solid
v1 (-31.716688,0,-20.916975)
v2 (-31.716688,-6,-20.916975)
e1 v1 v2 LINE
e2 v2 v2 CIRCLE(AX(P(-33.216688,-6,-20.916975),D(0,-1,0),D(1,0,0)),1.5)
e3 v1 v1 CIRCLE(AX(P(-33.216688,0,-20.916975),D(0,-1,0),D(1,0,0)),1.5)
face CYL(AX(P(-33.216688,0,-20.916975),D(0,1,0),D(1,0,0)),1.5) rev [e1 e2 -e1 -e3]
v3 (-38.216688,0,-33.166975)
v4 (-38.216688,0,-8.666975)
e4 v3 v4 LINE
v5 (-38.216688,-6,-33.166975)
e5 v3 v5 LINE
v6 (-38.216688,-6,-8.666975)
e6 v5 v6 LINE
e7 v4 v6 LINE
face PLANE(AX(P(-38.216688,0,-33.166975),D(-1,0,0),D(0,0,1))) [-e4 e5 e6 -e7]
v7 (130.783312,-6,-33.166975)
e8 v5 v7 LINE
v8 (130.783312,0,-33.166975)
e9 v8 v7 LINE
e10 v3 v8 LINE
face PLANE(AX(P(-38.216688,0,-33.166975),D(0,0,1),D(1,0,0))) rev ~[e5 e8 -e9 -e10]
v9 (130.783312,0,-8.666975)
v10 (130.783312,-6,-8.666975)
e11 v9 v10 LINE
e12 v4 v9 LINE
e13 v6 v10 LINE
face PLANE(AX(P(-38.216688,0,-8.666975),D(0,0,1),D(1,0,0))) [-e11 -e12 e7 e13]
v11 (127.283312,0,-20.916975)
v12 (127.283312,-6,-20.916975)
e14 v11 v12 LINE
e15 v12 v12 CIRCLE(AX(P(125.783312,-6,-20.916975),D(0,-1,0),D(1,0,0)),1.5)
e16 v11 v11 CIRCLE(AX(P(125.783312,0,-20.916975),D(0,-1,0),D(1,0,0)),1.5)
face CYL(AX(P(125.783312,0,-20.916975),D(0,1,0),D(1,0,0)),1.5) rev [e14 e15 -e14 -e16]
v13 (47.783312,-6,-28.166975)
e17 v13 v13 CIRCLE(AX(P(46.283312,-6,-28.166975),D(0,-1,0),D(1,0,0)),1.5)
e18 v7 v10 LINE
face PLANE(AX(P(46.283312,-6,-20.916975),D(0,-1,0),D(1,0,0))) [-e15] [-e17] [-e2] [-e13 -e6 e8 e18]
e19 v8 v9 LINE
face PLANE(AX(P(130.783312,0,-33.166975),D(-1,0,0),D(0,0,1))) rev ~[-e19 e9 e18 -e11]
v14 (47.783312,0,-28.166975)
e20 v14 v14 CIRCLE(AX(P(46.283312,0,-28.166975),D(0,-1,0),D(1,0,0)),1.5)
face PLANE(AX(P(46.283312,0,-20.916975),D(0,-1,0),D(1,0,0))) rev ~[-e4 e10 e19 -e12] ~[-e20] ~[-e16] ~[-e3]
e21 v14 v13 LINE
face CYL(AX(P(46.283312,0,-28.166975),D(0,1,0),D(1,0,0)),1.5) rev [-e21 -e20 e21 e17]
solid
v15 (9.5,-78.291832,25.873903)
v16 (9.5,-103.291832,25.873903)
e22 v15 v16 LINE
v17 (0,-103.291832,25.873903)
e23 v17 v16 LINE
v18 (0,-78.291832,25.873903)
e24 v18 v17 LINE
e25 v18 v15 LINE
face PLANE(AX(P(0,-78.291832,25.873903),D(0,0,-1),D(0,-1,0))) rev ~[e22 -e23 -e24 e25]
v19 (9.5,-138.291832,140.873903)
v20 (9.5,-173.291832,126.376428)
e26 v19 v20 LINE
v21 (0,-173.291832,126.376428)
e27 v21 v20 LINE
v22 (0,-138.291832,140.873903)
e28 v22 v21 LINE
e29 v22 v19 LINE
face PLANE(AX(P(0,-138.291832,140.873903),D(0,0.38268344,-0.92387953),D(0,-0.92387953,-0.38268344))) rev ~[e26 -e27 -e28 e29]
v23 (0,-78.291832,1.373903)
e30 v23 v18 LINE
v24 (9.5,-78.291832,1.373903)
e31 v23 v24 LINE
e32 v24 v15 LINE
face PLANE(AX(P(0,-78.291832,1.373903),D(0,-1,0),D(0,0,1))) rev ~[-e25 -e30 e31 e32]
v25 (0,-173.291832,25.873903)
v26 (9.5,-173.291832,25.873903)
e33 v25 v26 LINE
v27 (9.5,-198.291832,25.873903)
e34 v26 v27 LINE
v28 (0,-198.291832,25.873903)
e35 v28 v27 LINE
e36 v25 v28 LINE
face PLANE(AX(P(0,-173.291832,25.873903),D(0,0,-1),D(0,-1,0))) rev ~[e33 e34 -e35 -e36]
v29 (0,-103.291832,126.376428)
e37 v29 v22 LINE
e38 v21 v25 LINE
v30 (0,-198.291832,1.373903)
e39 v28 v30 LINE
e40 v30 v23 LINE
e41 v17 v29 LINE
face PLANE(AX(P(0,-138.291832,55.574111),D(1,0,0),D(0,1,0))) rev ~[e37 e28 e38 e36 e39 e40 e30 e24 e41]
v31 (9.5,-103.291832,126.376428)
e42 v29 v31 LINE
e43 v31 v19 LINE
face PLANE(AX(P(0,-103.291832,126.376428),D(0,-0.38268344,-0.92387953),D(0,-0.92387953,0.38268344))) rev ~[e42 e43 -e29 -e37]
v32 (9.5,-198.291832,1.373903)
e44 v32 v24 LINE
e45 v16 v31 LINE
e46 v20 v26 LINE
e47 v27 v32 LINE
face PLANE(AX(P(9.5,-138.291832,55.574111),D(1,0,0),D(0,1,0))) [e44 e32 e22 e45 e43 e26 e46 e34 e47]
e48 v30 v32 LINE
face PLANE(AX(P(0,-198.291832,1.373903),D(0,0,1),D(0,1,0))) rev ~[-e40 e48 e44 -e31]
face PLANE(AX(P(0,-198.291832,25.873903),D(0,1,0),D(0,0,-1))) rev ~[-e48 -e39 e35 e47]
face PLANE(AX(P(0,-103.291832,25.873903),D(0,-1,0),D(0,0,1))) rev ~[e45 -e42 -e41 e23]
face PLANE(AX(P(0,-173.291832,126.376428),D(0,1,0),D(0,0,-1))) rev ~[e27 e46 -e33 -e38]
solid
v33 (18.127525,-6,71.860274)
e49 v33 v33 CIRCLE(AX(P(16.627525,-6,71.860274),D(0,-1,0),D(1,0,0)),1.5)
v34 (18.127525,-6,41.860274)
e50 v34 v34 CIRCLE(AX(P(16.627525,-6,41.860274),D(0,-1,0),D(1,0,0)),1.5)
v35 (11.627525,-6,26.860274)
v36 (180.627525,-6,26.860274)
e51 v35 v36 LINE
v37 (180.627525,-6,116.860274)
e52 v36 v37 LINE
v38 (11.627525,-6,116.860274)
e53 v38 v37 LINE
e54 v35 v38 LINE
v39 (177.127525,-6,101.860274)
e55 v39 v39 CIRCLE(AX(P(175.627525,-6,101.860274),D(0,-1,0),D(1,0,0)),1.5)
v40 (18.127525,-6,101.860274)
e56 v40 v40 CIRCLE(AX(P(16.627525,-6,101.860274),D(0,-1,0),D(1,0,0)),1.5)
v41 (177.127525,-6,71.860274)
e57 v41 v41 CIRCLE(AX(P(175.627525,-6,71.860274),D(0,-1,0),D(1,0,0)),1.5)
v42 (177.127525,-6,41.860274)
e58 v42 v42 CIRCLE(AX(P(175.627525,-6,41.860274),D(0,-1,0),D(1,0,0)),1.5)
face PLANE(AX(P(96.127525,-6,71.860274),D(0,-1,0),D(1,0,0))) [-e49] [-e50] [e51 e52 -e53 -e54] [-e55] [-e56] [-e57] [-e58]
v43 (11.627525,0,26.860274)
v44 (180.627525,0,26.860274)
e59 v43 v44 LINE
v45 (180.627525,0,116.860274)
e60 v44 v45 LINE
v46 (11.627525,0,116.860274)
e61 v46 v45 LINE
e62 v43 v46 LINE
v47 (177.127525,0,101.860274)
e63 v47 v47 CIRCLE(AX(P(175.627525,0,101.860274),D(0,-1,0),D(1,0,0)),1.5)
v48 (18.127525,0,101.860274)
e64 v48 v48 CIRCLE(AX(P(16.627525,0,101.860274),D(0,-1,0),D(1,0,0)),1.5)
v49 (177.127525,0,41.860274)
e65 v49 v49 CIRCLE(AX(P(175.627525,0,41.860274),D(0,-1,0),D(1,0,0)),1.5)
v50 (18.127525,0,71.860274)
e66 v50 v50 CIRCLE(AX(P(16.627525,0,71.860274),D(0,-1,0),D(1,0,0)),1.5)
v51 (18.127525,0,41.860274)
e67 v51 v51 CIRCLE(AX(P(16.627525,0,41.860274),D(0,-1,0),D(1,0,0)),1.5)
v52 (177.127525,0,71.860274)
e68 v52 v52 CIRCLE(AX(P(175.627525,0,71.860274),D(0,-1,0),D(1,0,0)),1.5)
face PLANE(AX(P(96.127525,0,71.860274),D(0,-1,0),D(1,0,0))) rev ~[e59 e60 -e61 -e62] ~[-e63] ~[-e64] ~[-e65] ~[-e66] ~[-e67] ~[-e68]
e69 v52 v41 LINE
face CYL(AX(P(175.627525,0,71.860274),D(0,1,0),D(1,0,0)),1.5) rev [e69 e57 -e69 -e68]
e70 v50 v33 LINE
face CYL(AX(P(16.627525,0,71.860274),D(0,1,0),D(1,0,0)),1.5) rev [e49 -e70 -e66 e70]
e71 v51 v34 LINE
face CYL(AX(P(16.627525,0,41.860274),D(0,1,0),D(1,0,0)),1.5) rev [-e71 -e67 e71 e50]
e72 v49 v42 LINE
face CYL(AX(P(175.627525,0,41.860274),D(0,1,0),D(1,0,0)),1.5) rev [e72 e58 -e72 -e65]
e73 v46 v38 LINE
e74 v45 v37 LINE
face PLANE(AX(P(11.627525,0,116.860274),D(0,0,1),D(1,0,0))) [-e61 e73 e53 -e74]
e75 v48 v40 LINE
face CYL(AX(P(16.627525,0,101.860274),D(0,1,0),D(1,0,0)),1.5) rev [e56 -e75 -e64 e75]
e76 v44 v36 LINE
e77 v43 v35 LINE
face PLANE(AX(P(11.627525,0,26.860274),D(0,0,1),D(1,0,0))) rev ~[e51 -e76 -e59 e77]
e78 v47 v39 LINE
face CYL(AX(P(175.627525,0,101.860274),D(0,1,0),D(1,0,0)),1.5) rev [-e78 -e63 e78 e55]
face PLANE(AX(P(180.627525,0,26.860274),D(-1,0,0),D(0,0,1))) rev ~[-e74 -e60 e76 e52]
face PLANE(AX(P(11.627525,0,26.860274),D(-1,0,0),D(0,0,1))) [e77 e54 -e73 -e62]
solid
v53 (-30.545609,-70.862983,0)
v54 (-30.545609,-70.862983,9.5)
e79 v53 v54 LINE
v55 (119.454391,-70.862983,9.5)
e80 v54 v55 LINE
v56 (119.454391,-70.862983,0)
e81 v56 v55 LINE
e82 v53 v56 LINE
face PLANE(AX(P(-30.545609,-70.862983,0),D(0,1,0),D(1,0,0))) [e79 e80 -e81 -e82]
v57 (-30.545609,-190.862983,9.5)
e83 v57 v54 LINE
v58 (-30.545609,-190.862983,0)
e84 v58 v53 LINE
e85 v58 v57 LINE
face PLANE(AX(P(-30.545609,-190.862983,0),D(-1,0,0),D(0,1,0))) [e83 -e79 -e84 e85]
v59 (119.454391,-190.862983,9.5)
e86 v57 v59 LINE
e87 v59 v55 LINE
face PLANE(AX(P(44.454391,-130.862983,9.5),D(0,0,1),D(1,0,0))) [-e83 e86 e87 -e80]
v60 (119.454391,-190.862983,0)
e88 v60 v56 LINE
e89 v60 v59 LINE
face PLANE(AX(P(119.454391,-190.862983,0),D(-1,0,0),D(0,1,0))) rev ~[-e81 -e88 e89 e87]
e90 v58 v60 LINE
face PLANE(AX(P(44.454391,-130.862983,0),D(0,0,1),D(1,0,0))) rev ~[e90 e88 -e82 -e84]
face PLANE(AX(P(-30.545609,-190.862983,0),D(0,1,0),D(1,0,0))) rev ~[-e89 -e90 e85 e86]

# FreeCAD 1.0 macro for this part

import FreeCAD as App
import Part
import Sketcher
Q = App.Units.Quantity


def add_polygon(sketch, points):
    """Adds a closed chain of lines whose ends are joined by coincident constraints."""
    first, n = sketch.GeometryCount, len(points)
    for a, b in zip(points, points[1:] + points[:1]):
        sketch.addGeometry(Part.LineSegment(App.Vector(*a, 0), App.Vector(*b, 0)), False)
    for i in range(n):
        sketch.addConstraint(Sketcher.Constraint("Coincident", first + i, 2, first + (i + 1) % n, 1))

doc = App.newDocument("Part")
body = doc.addObject("PartDesign::Body", "Body")

# Sketch on XY plane
sketch1 = body.newObject("Sketcher::SketchObject", "Sketch")
sketch1.AttachmentSupport = (doc.getObject("XY_Plane"), [""])
sketch1.MapMode = "FlatFace"
add_polygon(sketch1, [(-31, -71), (-31, -191), (119, -191), (119, -71)])  # lines 0-3
sketch1.addConstraint(Sketcher.Constraint("Vertical", 0))
sketch1.addConstraint(Sketcher.Constraint("Horizontal", 1))
sketch1.addConstraint(Sketcher.Constraint("Vertical", 2))
sketch1.addConstraint(Sketcher.Constraint("Horizontal", 3))
sketch1.addConstraint(Sketcher.Constraint("DistanceX", 1, 1, 1, 2, 150.0))
sketch1.addConstraint(Sketcher.Constraint("DistanceY", 0, 2, 0, 1, 120.0))
sketch1.addConstraint(Sketcher.Constraint("DistanceX", 0, 2, -1, 1, 30.545609))
sketch1.addConstraint(Sketcher.Constraint("DistanceY", 0, 2, -1, 1, 190.862983))
pad1 = body.newObject("PartDesign::Pad", "Pad")
pad1.Profile = sketch1
pad1.Length = 9.5
body2 = doc.addObject("PartDesign::Body", "Body001")

# Sketch on YZ plane
sketch2 = body2.newObject("Sketcher::SketchObject", "Sketch001")
sketch2.AttachmentSupport = (doc.getObject("YZ_Plane001"), [""])
sketch2.MapMode = "FlatFace"
add_polygon(sketch2, [(-78, 1), (-78, 26), (-103, 26), (-103, 126), (-138, 141), (-173, 126), (-173, 26), (-198, 26), (-198, 1)])  # lines 0-8
sketch2.addConstraint(Sketcher.Constraint("Vertical", 0))
sketch2.addConstraint(Sketcher.Constraint("Horizontal", 1))
sketch2.addConstraint(Sketcher.Constraint("Vertical", 2))
sketch2.addConstraint(Sketcher.Constraint("Vertical", 5))
sketch2.addConstraint(Sketcher.Constraint("Horizontal", 6))
sketch2.addConstraint(Sketcher.Constraint("Vertical", 7))
sketch2.addConstraint(Sketcher.Constraint("Horizontal", 8))
sketch2.addConstraint(Sketcher.Constraint("Horizontal", 2, 2, 4, 2))
sketch2.addConstraint(Sketcher.Constraint("Horizontal", 1, 2, 5, 2))
sketch2.addConstraint(Sketcher.Constraint("Equal", 1, 6))
sketch2.addConstraint(Sketcher.Constraint("Equal", 3, 4))
sketch2.addConstraint(Sketcher.Constraint("DistanceX", 1, 2, 1, 1, 25.0))
sketch2.addConstraint(Sketcher.Constraint("DistanceX", 8, 1, 8, 2, 120.0))
sketch2.addConstraint(Sketcher.Constraint("DistanceY", 0, 1, 0, 2, 24.5))
sketch2.addConstraint(Sketcher.Constraint("Angle", 3, Q("157.5 deg")))
sketch2.addConstraint(Sketcher.Constraint("DistanceY", 1, 2, 3, 2, 115.0))
sketch2.addConstraint(Sketcher.Constraint("DistanceX", 0, 2, -1, 1, 78.291832))
sketch2.addConstraint(Sketcher.Constraint("DistanceY", -1, 1, 2, 2, 126.376428))
pad2 = body2.newObject("PartDesign::Pad", "Pad001")
pad2.Profile = sketch2
pad2.Length = 9.5
body3 = doc.addObject("PartDesign::Body", "Body002")

# Sketch on XZ plane
sketch3 = body3.newObject("Sketcher::SketchObject", "Sketch002")
sketch3.AttachmentSupport = (doc.getObject("XZ_Plane002"), [""])
sketch3.MapMode = "FlatFace"
add_polygon(sketch3, [(11.6, 116.9), (11.6, 26.9), (180.6, 26.9), (180.6, 116.9)])  # lines 0-3
sketch3.addGeometry(Part.Circle(App.Vector(16.6, 41.9, 0), App.Vector(0, 0, 1), 1.5), False)  # 4
sketch3.addGeometry(Part.Circle(App.Vector(175.6, 41.9, 0), App.Vector(0, 0, 1), 1.5), False)  # 5
sketch3.addGeometry(Part.Circle(App.Vector(16.6, 71.9, 0), App.Vector(0, 0, 1), 1.5), False)  # 6
sketch3.addGeometry(Part.Circle(App.Vector(16.6, 101.9, 0), App.Vector(0, 0, 1), 1.5), False)  # 7
sketch3.addGeometry(Part.Circle(App.Vector(175.6, 71.9, 0), App.Vector(0, 0, 1), 1.5), False)  # 8
sketch3.addGeometry(Part.Circle(App.Vector(175.6, 101.9, 0), App.Vector(0, 0, 1), 1.5), False)  # 9
sketch3.addConstraint(Sketcher.Constraint("Vertical", 0))
sketch3.addConstraint(Sketcher.Constraint("Horizontal", 1))
sketch3.addConstraint(Sketcher.Constraint("Vertical", 2))
sketch3.addConstraint(Sketcher.Constraint("Horizontal", 3))
sketch3.addConstraint(Sketcher.Constraint("Equal", 4, 5))
sketch3.addConstraint(Sketcher.Constraint("Equal", 5, 6))
sketch3.addConstraint(Sketcher.Constraint("Equal", 6, 7))
sketch3.addConstraint(Sketcher.Constraint("Equal", 7, 8))
sketch3.addConstraint(Sketcher.Constraint("Equal", 8, 9))
sketch3.addConstraint(Sketcher.Constraint("Horizontal", 4, 3, 5, 3))
sketch3.addConstraint(Sketcher.Constraint("Horizontal", 6, 3, 8, 3))
sketch3.addConstraint(Sketcher.Constraint("Horizontal", 7, 3, 9, 3))
sketch3.addConstraint(Sketcher.Constraint("Vertical", 4, 3, 6, 3))
sketch3.addConstraint(Sketcher.Constraint("Vertical", 6, 3, 7, 3))
sketch3.addConstraint(Sketcher.Constraint("Vertical", 5, 3, 8, 3))
sketch3.addConstraint(Sketcher.Constraint("Vertical", 8, 3, 9, 3))
sketch3.addConstraint(Sketcher.Constraint("Diameter", 4, 3.0))
sketch3.addConstraint(Sketcher.Constraint("DistanceX", 1, 1, 1, 2, 169.0))
sketch3.addConstraint(Sketcher.Constraint("DistanceY", 0, 2, 0, 1, 90.0))
sketch3.addConstraint(Sketcher.Constraint("DistanceX", 4, 3, 5, 3, 159.0))
sketch3.addConstraint(Sketcher.Constraint("DistanceY", 4, 3, 6, 3, 30.0))
sketch3.addConstraint(Sketcher.Constraint("DistanceY", 6, 3, 7, 3, 30.0))
sketch3.addConstraint(Sketcher.Constraint("DistanceX", 0, 2, 4, 3, 5.0))
sketch3.addConstraint(Sketcher.Constraint("DistanceY", 0, 2, 4, 3, 15.0))
sketch3.addConstraint(Sketcher.Constraint("DistanceX", -1, 1, 4, 3, 16.627525))
sketch3.addConstraint(Sketcher.Constraint("DistanceY", -1, 1, 4, 3, 41.860274))
pad3 = body3.newObject("PartDesign::Pad", "Pad002")
pad3.Profile = sketch3
pad3.Length = 6
body4 = doc.addObject("PartDesign::Body", "Body003")

# Sketch on XZ plane
sketch4 = body4.newObject("Sketcher::SketchObject", "Sketch003")
sketch4.AttachmentSupport = (doc.getObject("XZ_Plane003"), [""])
sketch4.MapMode = "FlatFace"
add_polygon(sketch4, [(-38.2, -8.7), (-38.2, -33.2), (130.8, -33.2), (130.8, -8.7)])  # lines 0-3
sketch4.addGeometry(Part.Circle(App.Vector(46.3, -28.2, 0), App.Vector(0, 0, 1), 1.5), False)  # 4
sketch4.addGeometry(Part.Circle(App.Vector(-33.2, -20.9, 0), App.Vector(0, 0, 1), 1.5), False)  # 5
sketch4.addGeometry(Part.Circle(App.Vector(125.8, -20.9, 0), App.Vector(0, 0, 1), 1.5), False)  # 6
sketch4.addConstraint(Sketcher.Constraint("Vertical", 0))
sketch4.addConstraint(Sketcher.Constraint("Horizontal", 1))
sketch4.addConstraint(Sketcher.Constraint("Vertical", 2))
sketch4.addConstraint(Sketcher.Constraint("Horizontal", 3))
sketch4.addConstraint(Sketcher.Constraint("Equal", 4, 5))
sketch4.addConstraint(Sketcher.Constraint("Equal", 5, 6))
sketch4.addConstraint(Sketcher.Constraint("Horizontal", 5, 3, 6, 3))
sketch4.addConstraint(Sketcher.Constraint("Diameter", 4, 3.0))
sketch4.addConstraint(Sketcher.Constraint("DistanceX", 1, 1, 1, 2, 169.0))
sketch4.addConstraint(Sketcher.Constraint("DistanceY", 0, 2, 0, 1, 24.5))
sketch4.addConstraint(Sketcher.Constraint("DistanceX", 5, 3, 6, 3, 159.0))
sketch4.addConstraint(Sketcher.Constraint("DistanceX", 0, 2, 5, 3, 5.0))
sketch4.addConstraint(Sketcher.Constraint("DistanceY", 0, 2, 4, 3, 5.0))
sketch4.addConstraint(Sketcher.Constraint("DistanceX", 5, 3, 4, 3, 79.5))
sketch4.addConstraint(Sketcher.Constraint("DistanceY", 4, 3, 5, 3, 7.25))
sketch4.addConstraint(Sketcher.Constraint("DistanceX", -1, 1, 6, 3, 125.783312))
sketch4.addConstraint(Sketcher.Constraint("DistanceY", 4, 3, -1, 1, 28.166975))
pad4 = body4.newObject("PartDesign::Pad", "Pad003")
pad4.Profile = sketch4
pad4.Length = 6

doc.recompute()
